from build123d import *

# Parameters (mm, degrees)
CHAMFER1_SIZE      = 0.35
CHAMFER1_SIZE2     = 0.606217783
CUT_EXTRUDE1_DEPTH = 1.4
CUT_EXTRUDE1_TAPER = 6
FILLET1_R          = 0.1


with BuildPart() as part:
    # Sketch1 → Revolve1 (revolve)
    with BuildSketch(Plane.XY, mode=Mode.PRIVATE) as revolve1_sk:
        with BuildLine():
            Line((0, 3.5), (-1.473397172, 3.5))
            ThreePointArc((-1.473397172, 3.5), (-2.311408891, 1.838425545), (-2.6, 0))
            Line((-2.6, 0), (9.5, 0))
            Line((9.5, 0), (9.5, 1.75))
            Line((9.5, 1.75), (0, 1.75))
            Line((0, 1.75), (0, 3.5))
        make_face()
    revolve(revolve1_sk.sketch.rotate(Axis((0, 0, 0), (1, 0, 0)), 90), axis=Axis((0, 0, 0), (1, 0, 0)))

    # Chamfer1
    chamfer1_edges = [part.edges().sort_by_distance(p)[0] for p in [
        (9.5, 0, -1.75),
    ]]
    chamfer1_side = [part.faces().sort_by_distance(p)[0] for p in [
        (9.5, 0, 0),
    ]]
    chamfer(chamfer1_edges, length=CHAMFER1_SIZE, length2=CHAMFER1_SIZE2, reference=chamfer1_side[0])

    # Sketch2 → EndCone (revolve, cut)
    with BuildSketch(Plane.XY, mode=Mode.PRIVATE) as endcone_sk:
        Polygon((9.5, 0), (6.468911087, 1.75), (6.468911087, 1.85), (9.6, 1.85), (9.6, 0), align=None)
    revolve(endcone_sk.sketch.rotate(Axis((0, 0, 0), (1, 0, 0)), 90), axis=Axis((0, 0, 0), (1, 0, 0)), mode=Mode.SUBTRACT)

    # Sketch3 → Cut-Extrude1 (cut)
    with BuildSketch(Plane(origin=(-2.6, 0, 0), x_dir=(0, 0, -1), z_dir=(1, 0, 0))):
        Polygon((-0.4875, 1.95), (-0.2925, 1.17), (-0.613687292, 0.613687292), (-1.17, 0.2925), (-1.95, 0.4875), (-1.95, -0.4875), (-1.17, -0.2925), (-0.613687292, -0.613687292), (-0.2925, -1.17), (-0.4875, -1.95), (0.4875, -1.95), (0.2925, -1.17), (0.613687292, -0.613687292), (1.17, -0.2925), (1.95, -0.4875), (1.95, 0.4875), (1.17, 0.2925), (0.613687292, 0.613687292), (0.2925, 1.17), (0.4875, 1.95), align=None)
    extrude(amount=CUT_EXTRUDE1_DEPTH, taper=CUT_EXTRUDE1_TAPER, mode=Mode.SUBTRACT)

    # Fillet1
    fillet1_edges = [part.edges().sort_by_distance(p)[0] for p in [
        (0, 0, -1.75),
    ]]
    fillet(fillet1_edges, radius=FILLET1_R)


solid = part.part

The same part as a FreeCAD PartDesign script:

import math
import FreeCAD as App
import Part
import Sketcher

V = App.Vector
Q = App.Units.Quantity


def edges_at(feature, points):
    """Names of the edges that pass closest to the given points."""
    edges = feature.Shape.Edges
    near = lambda p: min(range(len(edges)), key=lambda i: edges[i].distToShape(Part.Vertex(*p))[0])
    return sorted({f"Edge{near(p) + 1}" for p in points})

doc = App.newDocument("Part")
body = doc.addObject("PartDesign::Body", "Body")

# Sketch on XY plane
sketch1 = doc.addObject("Sketcher::SketchObject", "Sketch")
body.addObject(sketch1)
sketch1.AttachmentSupport = (doc.XY_Plane, [""])
sketch1.MapMode = "FlatFace"
sketch1.addGeometry(Part.LineSegment(V(0, 3.5, 0), V(-1.473397, 3.5, 0)), False)
sketch1.addGeometry(Part.ArcOfCircle(Part.Circle(V(3.4, 0, 0), V(0, 0, 1), 6), math.radians(144.314665), math.radians(180)), False)
sketch1.addGeometry(Part.LineSegment(V(-2.6, 0, 0), V(9.5, 0, 0)), False)
sketch1.addGeometry(Part.LineSegment(V(9.5, 0, 0), V(9.5, 1.75, 0)), False)
sketch1.addGeometry(Part.LineSegment(V(9.5, 1.75, 0), V(0, 1.75, 0)), False)
sketch1.addGeometry(Part.LineSegment(V(0, 1.75, 0), V(0, 3.5, 0)), False)
sketch1.addConstraint(Sketcher.Constraint("Coincident", 0, 2, 1, 1))
sketch1.addConstraint(Sketcher.Constraint("Coincident", 1, 2, 2, 1))
sketch1.addConstraint(Sketcher.Constraint("Coincident", 2, 2, 3, 1))
sketch1.addConstraint(Sketcher.Constraint("Coincident", 3, 2, 4, 1))
sketch1.addConstraint(Sketcher.Constraint("Coincident", 4, 2, 5, 1))
sketch1.addConstraint(Sketcher.Constraint("Coincident", 5, 2, 0, 1))
sketch1.addConstraint(Sketcher.Constraint("Horizontal", 0))
sketch1.addConstraint(Sketcher.Constraint("Horizontal", 2))
sketch1.addConstraint(Sketcher.Constraint("Vertical", 3))
sketch1.addConstraint(Sketcher.Constraint("Horizontal", 4))
sketch1.addConstraint(Sketcher.Constraint("Vertical", 5))
sketch1.addConstraint(Sketcher.Constraint("PointOnObject", 1, 3, -1))
sketch1.addConstraint(Sketcher.Constraint("PointOnObject", 1, 2, -1))
sketch1.addConstraint(Sketcher.Constraint("PointOnObject", 4, 2, -2))
sketch1.addConstraint(Sketcher.Constraint("Equal", 3, 5))
sketch1.addConstraint(Sketcher.Constraint("Radius", 1, 6.0))
sketch1.addConstraint(Sketcher.Constraint("DistanceX", 2, 1, 2, 2, 12.1))
sketch1.addConstraint(Sketcher.Constraint("DistanceX", 4, 2, 4, 1, 9.5))
sketch1.addConstraint(Sketcher.Constraint("DistanceY", 3, 1, 3, 2, 1.75))
revolution = doc.addObject("PartDesign::Revolution", "Revolution")
body.addObject(revolution)
revolution.Profile = sketch1
revolution.ReferenceAxis = (sketch1, ["H_Axis"])
revolution.Angle = 360
doc.recompute()

chamfer = doc.addObject("PartDesign::Chamfer", "Chamfer")
body.addObject(chamfer)
chamfer.Base = (revolution, edges_at(revolution, [(9.5, 0, -1.75)]))
chamfer.ChamferType = "Two distances"
chamfer.Size = 0.35
chamfer.Size2 = 0.606218

# Sketch on XY plane
sketch2 = doc.addObject("Sketcher::SketchObject", "Sketch001")
body.addObject(sketch2)
sketch2.AttachmentSupport = (doc.XY_Plane, [""])
sketch2.MapMode = "FlatFace"
sketch2.addGeometry(Part.LineSegment(V(6.468911, 1.75, 0), V(9.5, 0, 0)), False)
sketch2.addGeometry(Part.LineSegment(V(9.5, 0, 0), V(9.6, 0, 0)), False)
sketch2.addGeometry(Part.LineSegment(V(9.6, 0, 0), V(9.6, 1.85, 0)), False)
sketch2.addGeometry(Part.LineSegment(V(9.6, 1.85, 0), V(6.468911, 1.85, 0)), False)
sketch2.addGeometry(Part.LineSegment(V(6.468911, 1.85, 0), V(6.468911, 1.75, 0)), False)
sketch2.addConstraint(Sketcher.Constraint("Coincident", 0, 2, 1, 1))
sketch2.addConstraint(Sketcher.Constraint("Coincident", 1, 2, 2, 1))
sketch2.addConstraint(Sketcher.Constraint("Coincident", 2, 2, 3, 1))
sketch2.addConstraint(Sketcher.Constraint("Coincident", 3, 2, 4, 1))
sketch2.addConstraint(Sketcher.Constraint("Coincident", 4, 2, 0, 1))
sketch2.addConstraint(Sketcher.Constraint("Horizontal", 1))
sketch2.addConstraint(Sketcher.Constraint("Vertical", 2))
sketch2.addConstraint(Sketcher.Constraint("Horizontal", 3))
sketch2.addConstraint(Sketcher.Constraint("Vertical", 4))
sketch2.addConstraint(Sketcher.Constraint("PointOnObject", 0, 2, -1))
sketch2.addConstraint(Sketcher.Constraint("Equal", 1, 4))
sketch2.addConstraint(Sketcher.Constraint("Angle", 0, Q("-30 deg")))
sketch2.addConstraint(Sketcher.Constraint("DistanceX", 1, 1, 1, 2, 0.1))
sketch2.addConstraint(Sketcher.Constraint("Distance", 0, 3.5))
sketch2.addConstraint(Sketcher.Constraint("DistanceX", -1, 1, 0, 2, 9.5))
groove = doc.addObject("PartDesign::Groove", "Groove")
body.addObject(groove)
groove.Profile = sketch2
groove.ReferenceAxis = (sketch2, ["H_Axis"])
groove.Angle = 360

# Sketch on YZ plane
sketch3 = doc.addObject("Sketcher::SketchObject", "Sketch002")
body.addObject(sketch3)
sketch3.AttachmentSupport = (doc.YZ_Plane, [""])
sketch3.MapMode = "FlatFace"
sketch3.AttachmentOffset = App.Placement(V(0, 0, -2.6), App.Rotation())
sketch3.addGeometry(Part.LineSegment(V(1.95, 0.4875, 0), V(1.17, 0.2925, 0)), False)
sketch3.addGeometry(Part.LineSegment(V(1.17, 0.2925, 0), V(0.613687, 0.613687, 0)), False)
sketch3.addGeometry(Part.LineSegment(V(0.613687, 0.613687, 0), V(0.2925, 1.17, 0)), False)
sketch3.addGeometry(Part.LineSegment(V(0.2925, 1.17, 0), V(0.4875, 1.95, 0)), False)
sketch3.addGeometry(Part.LineSegment(V(0.4875, 1.95, 0), V(-0.4875, 1.95, 0)), False)
sketch3.addGeometry(Part.LineSegment(V(-0.4875, 1.95, 0), V(-0.2925, 1.17, 0)), False)
sketch3.addGeometry(Part.LineSegment(V(-0.2925, 1.17, 0), V(-0.613687, 0.613687, 0)), False)
sketch3.addGeometry(Part.LineSegment(V(-0.613687, 0.613687, 0), V(-1.17, 0.2925, 0)), False)
sketch3.addGeometry(Part.LineSegment(V(-1.17, 0.2925, 0), V(-1.95, 0.4875, 0)), False)
sketch3.addGeometry(Part.LineSegment(V(-1.95, 0.4875, 0), V(-1.95, -0.4875, 0)), False)
sketch3.addGeometry(Part.LineSegment(V(-1.95, -0.4875, 0), V(-1.17, -0.2925, 0)), False)
sketch3.addGeometry(Part.LineSegment(V(-1.17, -0.2925, 0), V(-0.613687, -0.613687, 0)), False)
sketch3.addGeometry(Part.LineSegment(V(-0.613687, -0.613687, 0), V(-0.2925, -1.17, 0)), False)
sketch3.addGeometry(Part.LineSegment(V(-0.2925, -1.17, 0), V(-0.4875, -1.95, 0)), False)
sketch3.addGeometry(Part.LineSegment(V(-0.4875, -1.95, 0), V(0.4875, -1.95, 0)), False)
sketch3.addGeometry(Part.LineSegment(V(0.4875, -1.95, 0), V(0.2925, -1.17, 0)), False)
sketch3.addGeometry(Part.LineSegment(V(0.2925, -1.17, 0), V(0.613687, -0.613687, 0)), False)
sketch3.addGeometry(Part.LineSegment(V(0.613687, -0.613687, 0), V(1.17, -0.2925, 0)), False)
sketch3.addGeometry(Part.LineSegment(V(1.17, -0.2925, 0), V(1.95, -0.4875, 0)), False)
sketch3.addGeometry(Part.LineSegment(V(1.95, -0.4875, 0), V(1.95, 0.4875, 0)), False)
sketch3.addConstraint(Sketcher.Constraint("Coincident", 0, 2, 1, 1))
sketch3.addConstraint(Sketcher.Constraint("Coincident", 1, 2, 2, 1))
sketch3.addConstraint(Sketcher.Constraint("Coincident", 2, 2, 3, 1))
sketch3.addConstraint(Sketcher.Constraint("Coincident", 3, 2, 4, 1))
sketch3.addConstraint(Sketcher.Constraint("Coincident", 4, 2, 5, 1))
sketch3.addConstraint(Sketcher.Constraint("Coincident", 5, 2, 6, 1))
sketch3.addConstraint(Sketcher.Constraint("Coincident", 6, 2, 7, 1))
sketch3.addConstraint(Sketcher.Constraint("Coincident", 7, 2, 8, 1))
sketch3.addConstraint(Sketcher.Constraint("Coincident", 8, 2, 9, 1))
sketch3.addConstraint(Sketcher.Constraint("Coincident", 9, 2, 10, 1))
sketch3.addConstraint(Sketcher.Constraint("Coincident", 10, 2, 11, 1))
sketch3.addConstraint(Sketcher.Constraint("Coincident", 11, 2, 12, 1))
sketch3.addConstraint(Sketcher.Constraint("Coincident", 12, 2, 13, 1))
sketch3.addConstraint(Sketcher.Constraint("Coincident", 13, 2, 14, 1))
sketch3.addConstraint(Sketcher.Constraint("Coincident", 14, 2, 15, 1))
sketch3.addConstraint(Sketcher.Constraint("Coincident", 15, 2, 16, 1))
sketch3.addConstraint(Sketcher.Constraint("Coincident", 16, 2, 17, 1))
sketch3.addConstraint(Sketcher.Constraint("Coincident", 17, 2, 18, 1))
sketch3.addConstraint(Sketcher.Constraint("Coincident", 18, 2, 19, 1))
sketch3.addConstraint(Sketcher.Constraint("Coincident", 19, 2, 0, 1))
sketch3.addConstraint(Sketcher.Constraint("Horizontal", 4))
sketch3.addConstraint(Sketcher.Constraint("Vertical", 9))
sketch3.addConstraint(Sketcher.Constraint("Horizontal", 14))
sketch3.addConstraint(Sketcher.Constraint("Vertical", 19))
sketch3.addConstraint(Sketcher.Constraint("Symmetric", 0, 2, 10, 2, -1, 1))
sketch3.addConstraint(Sketcher.Constraint("Symmetric", 1, 2, 11, 2, -1, 1))
sketch3.addConstraint(Sketcher.Constraint("Symmetric", 2, 2, 12, 2, -1, 1))
sketch3.addConstraint(Sketcher.Constraint("Symmetric", 3, 2, 13, 2, -1, 1))
sketch3.addConstraint(Sketcher.Constraint("Symmetric", 5, 2, 15, 2, -1, 1))
sketch3.addConstraint(Sketcher.Constraint("Symmetric", 6, 2, 16, 2, -1, 1))
sketch3.addConstraint(Sketcher.Constraint("Symmetric", 7, 2, 17, 2, -1, 1))
sketch3.addConstraint(Sketcher.Constraint("Symmetric", 8, 2, 18, 2, -1, 1))
sketch3.addConstraint(Sketcher.Constraint("Symmetric", 2, 2, 5, 2, -2))
sketch3.addConstraint(Sketcher.Constraint("Symmetric", 1, 2, 6, 2, -2))
sketch3.addConstraint(Sketcher.Constraint("Symmetric", 0, 2, 7, 2, -2))
sketch3.addConstraint(Sketcher.Constraint("Perpendicular", 0, 5))
sketch3.addConstraint(Sketcher.Constraint("Perpendicular", 1, 6))
sketch3.addConstraint(Sketcher.Constraint("Perpendicular", 3, 8))
sketch3.addConstraint(Sketcher.Constraint("Perpendicular", 5, 10))
sketch3.addConstraint(Sketcher.Constraint("Perpendicular", 10, 15))
sketch3.addConstraint(Sketcher.Constraint("Horizontal", 9, 2, 18, 2))
sketch3.addConstraint(Sketcher.Constraint("Equal", 14, 9))
sketch3.addConstraint(Sketcher.Constraint("Equal", 1, 2))
sketch3.addConstraint(Sketcher.Constraint("Equal", 0, 3))
sketch3.addConstraint(Sketcher.Constraint("Angle", 1, Q("150 deg")))
sketch3.addConstraint(Sketcher.Constraint("DistanceX", 4, 2, 4, 1, 0.975))
sketch3.addConstraint(Sketcher.Constraint("DistanceX", -1, 1, 0, 2, 1.17))
sketch3.addConstraint(Sketcher.Constraint("DistanceY", -1, 1, 3, 2, 1.95))
sketch3.addConstraint(Sketcher.Constraint("DistanceX", 4, 2, 2, 2, 0.78))
pocket1 = doc.addObject("PartDesign::Pocket", "Pocket")
body.addObject(pocket1)
pocket1.Profile = sketch3
pocket1.Length = 1.4
pocket1.Reversed = True
pocket1.TaperAngle = -6
doc.recompute()

fillet = doc.addObject("PartDesign::Fillet", "Fillet")
body.addObject(fillet)
fillet.Base = (pocket1, edges_at(pocket1, [(0, 0, -1.75)]))
fillet.Radius = 0.1

doc.recompute()
